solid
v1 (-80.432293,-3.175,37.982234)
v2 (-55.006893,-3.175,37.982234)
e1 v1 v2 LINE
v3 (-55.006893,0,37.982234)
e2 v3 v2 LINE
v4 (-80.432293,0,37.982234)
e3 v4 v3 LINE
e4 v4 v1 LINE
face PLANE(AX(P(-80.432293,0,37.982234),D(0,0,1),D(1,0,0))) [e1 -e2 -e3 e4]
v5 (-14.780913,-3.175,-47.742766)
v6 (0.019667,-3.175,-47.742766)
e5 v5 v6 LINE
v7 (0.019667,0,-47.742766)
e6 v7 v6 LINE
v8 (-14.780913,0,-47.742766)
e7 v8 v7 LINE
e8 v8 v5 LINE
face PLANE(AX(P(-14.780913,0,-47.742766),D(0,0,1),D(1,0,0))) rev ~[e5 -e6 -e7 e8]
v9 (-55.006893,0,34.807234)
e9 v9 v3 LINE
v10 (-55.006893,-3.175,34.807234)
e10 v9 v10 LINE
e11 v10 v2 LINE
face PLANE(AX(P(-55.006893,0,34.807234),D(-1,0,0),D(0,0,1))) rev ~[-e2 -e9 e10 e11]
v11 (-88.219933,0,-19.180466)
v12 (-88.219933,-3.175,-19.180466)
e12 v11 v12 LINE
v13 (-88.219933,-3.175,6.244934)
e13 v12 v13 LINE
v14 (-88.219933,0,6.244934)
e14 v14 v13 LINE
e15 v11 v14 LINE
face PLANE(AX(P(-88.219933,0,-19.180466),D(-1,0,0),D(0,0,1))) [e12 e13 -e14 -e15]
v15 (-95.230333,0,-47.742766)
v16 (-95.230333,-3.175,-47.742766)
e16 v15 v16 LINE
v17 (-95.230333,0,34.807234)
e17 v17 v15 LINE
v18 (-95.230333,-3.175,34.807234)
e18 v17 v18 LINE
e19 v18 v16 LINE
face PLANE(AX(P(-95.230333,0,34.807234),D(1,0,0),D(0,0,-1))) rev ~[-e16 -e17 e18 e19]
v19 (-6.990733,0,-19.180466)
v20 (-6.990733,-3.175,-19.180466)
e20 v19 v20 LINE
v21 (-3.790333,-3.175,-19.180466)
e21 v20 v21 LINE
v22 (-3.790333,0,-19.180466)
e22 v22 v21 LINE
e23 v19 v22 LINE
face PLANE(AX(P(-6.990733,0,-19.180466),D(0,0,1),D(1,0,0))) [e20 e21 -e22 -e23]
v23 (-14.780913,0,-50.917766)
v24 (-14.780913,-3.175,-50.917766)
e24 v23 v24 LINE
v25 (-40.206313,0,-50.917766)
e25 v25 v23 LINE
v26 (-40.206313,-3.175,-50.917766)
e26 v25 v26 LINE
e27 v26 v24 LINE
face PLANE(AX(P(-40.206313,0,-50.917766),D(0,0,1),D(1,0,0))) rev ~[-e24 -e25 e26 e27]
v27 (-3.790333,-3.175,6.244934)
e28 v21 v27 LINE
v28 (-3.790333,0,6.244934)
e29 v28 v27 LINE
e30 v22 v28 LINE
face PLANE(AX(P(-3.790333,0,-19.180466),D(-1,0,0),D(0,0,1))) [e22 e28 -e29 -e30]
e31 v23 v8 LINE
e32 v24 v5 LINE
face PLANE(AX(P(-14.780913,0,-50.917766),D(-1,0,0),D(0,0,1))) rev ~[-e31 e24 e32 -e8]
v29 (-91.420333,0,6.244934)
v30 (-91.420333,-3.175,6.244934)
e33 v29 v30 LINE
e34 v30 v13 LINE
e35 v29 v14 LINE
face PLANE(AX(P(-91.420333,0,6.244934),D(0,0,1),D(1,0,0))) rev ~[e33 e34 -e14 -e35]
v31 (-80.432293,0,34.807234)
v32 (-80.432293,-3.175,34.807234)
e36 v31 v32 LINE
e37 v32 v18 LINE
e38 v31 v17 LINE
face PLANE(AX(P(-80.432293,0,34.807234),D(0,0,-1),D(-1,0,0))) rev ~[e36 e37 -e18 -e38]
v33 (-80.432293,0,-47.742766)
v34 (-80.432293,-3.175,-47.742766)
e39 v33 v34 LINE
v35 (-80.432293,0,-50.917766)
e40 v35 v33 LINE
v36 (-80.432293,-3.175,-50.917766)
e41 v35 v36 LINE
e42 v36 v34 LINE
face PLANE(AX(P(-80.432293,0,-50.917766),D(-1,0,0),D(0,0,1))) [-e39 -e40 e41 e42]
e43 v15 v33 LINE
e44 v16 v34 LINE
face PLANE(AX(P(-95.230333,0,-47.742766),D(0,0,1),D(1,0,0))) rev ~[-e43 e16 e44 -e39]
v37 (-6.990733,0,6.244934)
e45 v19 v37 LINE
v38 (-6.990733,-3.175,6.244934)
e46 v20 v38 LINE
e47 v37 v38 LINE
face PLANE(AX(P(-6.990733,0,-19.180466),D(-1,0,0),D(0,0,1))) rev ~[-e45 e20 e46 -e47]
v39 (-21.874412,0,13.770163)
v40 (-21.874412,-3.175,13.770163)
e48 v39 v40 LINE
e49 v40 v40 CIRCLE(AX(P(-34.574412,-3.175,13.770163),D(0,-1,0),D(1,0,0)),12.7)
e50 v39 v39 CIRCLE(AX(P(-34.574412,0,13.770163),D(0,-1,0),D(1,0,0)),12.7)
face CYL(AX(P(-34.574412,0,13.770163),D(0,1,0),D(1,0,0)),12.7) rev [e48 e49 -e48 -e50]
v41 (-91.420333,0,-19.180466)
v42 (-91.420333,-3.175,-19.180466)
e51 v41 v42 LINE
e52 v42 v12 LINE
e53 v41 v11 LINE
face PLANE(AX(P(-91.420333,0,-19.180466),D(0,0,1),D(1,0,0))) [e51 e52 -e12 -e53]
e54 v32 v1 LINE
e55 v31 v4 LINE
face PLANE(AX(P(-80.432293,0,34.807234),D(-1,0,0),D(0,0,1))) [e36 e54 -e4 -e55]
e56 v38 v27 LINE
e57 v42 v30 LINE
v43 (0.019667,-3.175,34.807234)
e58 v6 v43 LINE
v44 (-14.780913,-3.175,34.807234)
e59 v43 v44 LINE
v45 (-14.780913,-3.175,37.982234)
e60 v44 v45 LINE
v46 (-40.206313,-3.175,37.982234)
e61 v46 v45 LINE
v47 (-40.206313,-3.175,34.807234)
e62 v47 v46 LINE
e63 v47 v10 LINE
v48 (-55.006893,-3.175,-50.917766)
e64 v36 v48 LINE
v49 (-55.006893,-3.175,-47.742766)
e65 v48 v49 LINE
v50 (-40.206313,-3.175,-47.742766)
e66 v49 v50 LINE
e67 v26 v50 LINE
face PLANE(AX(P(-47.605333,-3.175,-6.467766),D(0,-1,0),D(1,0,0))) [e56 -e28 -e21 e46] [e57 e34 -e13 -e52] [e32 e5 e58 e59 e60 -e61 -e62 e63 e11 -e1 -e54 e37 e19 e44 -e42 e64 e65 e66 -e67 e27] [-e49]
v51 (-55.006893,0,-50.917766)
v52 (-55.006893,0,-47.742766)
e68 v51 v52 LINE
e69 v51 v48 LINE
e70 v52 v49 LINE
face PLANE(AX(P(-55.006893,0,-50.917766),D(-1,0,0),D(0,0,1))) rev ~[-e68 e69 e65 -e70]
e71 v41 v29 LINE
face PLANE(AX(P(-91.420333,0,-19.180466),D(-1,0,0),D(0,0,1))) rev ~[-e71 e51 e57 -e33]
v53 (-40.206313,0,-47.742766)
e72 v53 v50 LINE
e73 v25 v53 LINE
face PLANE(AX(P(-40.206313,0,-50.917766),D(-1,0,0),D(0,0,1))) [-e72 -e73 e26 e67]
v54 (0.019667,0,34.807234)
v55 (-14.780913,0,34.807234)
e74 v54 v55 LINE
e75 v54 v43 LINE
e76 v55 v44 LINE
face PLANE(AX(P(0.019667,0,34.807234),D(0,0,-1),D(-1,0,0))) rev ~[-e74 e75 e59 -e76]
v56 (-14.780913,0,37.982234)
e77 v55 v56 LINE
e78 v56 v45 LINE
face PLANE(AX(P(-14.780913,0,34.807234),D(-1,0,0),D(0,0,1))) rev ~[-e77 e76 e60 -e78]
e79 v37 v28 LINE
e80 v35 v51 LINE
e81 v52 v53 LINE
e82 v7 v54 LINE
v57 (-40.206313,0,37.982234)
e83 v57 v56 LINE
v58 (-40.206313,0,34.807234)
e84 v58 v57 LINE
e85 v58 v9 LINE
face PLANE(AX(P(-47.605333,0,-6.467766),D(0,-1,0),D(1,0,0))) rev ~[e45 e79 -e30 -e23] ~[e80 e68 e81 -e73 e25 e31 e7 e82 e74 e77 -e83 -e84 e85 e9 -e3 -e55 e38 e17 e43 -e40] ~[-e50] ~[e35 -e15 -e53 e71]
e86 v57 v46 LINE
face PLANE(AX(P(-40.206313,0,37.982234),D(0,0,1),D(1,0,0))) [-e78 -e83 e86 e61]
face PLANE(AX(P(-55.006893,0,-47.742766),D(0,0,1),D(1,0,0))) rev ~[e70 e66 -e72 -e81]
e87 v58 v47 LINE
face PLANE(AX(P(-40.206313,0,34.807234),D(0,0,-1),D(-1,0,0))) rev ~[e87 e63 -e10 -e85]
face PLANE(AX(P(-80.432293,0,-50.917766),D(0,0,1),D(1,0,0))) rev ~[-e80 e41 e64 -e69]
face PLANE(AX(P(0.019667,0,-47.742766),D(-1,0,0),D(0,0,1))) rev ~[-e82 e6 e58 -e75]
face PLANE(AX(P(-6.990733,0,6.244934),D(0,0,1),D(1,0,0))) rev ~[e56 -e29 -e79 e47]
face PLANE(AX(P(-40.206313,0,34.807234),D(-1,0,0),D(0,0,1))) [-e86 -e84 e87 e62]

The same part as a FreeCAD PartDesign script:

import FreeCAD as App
import Part
import Sketcher

V = App.Vector
Q = App.Units.Quantity


def add_polygon(sketch, points):
    """Adds a closed chain of lines whose ends are joined by coincident constraints."""
    first, n = sketch.GeometryCount, len(points)
    for a, b in zip(points, points[1:] + points[:1]):
        sketch.addGeometry(Part.LineSegment(App.Vector(*a, 0), App.Vector(*b, 0)), False)
    for i in range(n):
        sketch.addConstraint(Sketcher.Constraint("Coincident", first + i, 2, first + (i + 1) % n, 1))

doc = App.newDocument("Part")
params = doc.addObject("Spreadsheet::Sheet", "Params")
for row, (alias, value) in enumerate([
    ("sketch1_diameter", "1 in"),
    ("sketch1_height", "3.25 in"),
    ("sketch1_width", "1.001 in"),
    ("sketch1_width2", "0.126 in"),
    ("sketch1_height2", "0.125 in"),
    ("pad1_length", "0.125 in"),
], start=1):
    params.set(f"A{row}", alias)
    params.set(f"B{row}", "=" + value)
    params.setAlias(f"B{row}", alias)

body = doc.addObject("PartDesign::Body", "Body")

sketch1 = doc.addObject("Sketcher::SketchObject", "Sketch")
body.addObject(sketch1)
sketch1.AttachmentSupport = (doc.XZ_Plane, [""])
sketch1.MapMode = "FlatFace"
add_polygon(sketch1, [(-95.230333, 34.807234), (-95.230333, -47.742766), (-80.432293, -47.742766), (-80.432293, -50.917766), (-55.006893, -50.917766), (-55.006893, -47.742766), (-40.206313, -47.742766), (-40.206313, -50.917766), (-14.780913, -50.917766), (-14.780913, -47.742766), (0.019667, -47.742766), (0.019667, 34.807234), (-14.780913, 34.807234), (-14.780913, 37.982234), (-40.206313, 37.982234), (-40.206313, 34.807234), (-55.006893, 34.807234), (-55.006893, 37.982234), (-80.432293, 37.982234), (-80.432293, 34.807234)])
add_polygon(sketch1, [(-88.219933, -19.180466), (-91.420333, -19.180466), (-91.420333, 6.244934), (-88.219933, 6.244934)])
add_polygon(sketch1, [(-3.790333, -19.180466), (-6.990733, -19.180466), (-6.990733, 6.244934), (-3.790333, 6.244934)])
sketch1.addGeometry(Part.Circle(V(-34.574412, 13.770163, 0), V(0, 0, 1), 12.7), False)
sketch1.addConstraint([
    Sketcher.Constraint("Vertical", 0),
    Sketcher.Constraint("Horizontal", 1),
    Sketcher.Constraint("Vertical", 2),
    Sketcher.Constraint("Horizontal", 3),
    Sketcher.Constraint("Vertical", 4),
    Sketcher.Constraint("Horizontal", 5),
    Sketcher.Constraint("Vertical", 6),
    Sketcher.Constraint("Horizontal", 7),
    Sketcher.Constraint("Vertical", 8),
    Sketcher.Constraint("Horizontal", 9),
    Sketcher.Constraint("Vertical", 10),
    Sketcher.Constraint("Horizontal", 11),
    Sketcher.Constraint("Vertical", 12),
    Sketcher.Constraint("Horizontal", 13),
    Sketcher.Constraint("Vertical", 14),
    Sketcher.Constraint("Horizontal", 15),
    Sketcher.Constraint("Vertical", 16),
    Sketcher.Constraint("Horizontal", 17),
    Sketcher.Constraint("Vertical", 18),
    Sketcher.Constraint("Horizontal", 19),
    Sketcher.Constraint("Horizontal", 20),
    Sketcher.Constraint("Vertical", 21),
    Sketcher.Constraint("Horizontal", 22),
    Sketcher.Constraint("Vertical", 23),
    Sketcher.Constraint("Horizontal", 24),
    Sketcher.Constraint("Vertical", 25),
    Sketcher.Constraint("Horizontal", 26),
    Sketcher.Constraint("Vertical", 27),
    Sketcher.Constraint("Horizontal", 1, 2, 4, 2),
    Sketcher.Constraint("Horizontal", 3, 2, 6, 2),
    Sketcher.Constraint("Horizontal", 5, 2, 8, 2),
    Sketcher.Constraint("Horizontal", 11, 2, 14, 2),
    Sketcher.Constraint("Horizontal", 13, 2, 16, 2),
    Sketcher.Constraint("Horizontal", 15, 2, 18, 2),
    Sketcher.Constraint("Horizontal", 23, 2, 24, 2),
    Sketcher.Constraint("Horizontal", 22, 2, 25, 2),
    Sketcher.Constraint("Vertical", 8, 2, 11, 2),
    Sketcher.Constraint("Vertical", 6, 2, 13, 2),
    Sketcher.Constraint("Vertical", 4, 2, 15, 2),
    Sketcher.Constraint("Vertical", 2, 2, 17, 2),
    Sketcher.Constraint("Equal", 3, 7),
    Sketcher.Constraint("Equal", 5, 9),
    Sketcher.Constraint("Equal", 22, 24),
    Sketcher.Constraint("Equal", 8, 12),
    Sketcher.Constraint("Equal", 17, 21),
    Sketcher.Constraint("Diameter", 28, Q("1 in")),
    Sketcher.Constraint("DistanceY", 0, 2, 0, 1, Q("3.25 in")),
    Sketcher.Constraint("DistanceX", 3, 1, 3, 2, Q("1.001 in")),
    Sketcher.Constraint("DistanceX", 20, 2, 20, 1, Q("0.126 in")),
    Sketcher.Constraint("DistanceY", 2, 2, 2, 1, Q("0.125 in")),
    Sketcher.Constraint("DistanceX", 0, 2, 20, 2, Q("0.15 in")),
    Sketcher.Constraint("DistanceX", 26, 2, 10, 2, Q("0.15 in")),
    Sketcher.Constraint("DistanceX", 1, 1, 1, 2, Q("0.5826 in")),
    Sketcher.Constraint("DistanceX", 5, 1, 5, 2, Q("0.5827 in")),
    Sketcher.Constraint("DistanceY", 0, 2, 20, 2, Q("1.1245 in")),
    Sketcher.Constraint("DistanceX", 28, 3, 11, 2, Q("19.793499 mm")),
    Sketcher.Constraint("DistanceY", 0, 2, 28, 3, Q("61.512929 mm")),
    Sketcher.Constraint("DistanceX", 28, 3, -1, 1, Q("34.574412 mm")),
    Sketcher.Constraint("DistanceY", -1, 1, 28, 3, Q("13.770163 mm")),
])
sketch1.setExpression("Constraints[73]", "Params.sketch1_diameter")
sketch1.setExpression("Constraints[74]", "Params.sketch1_height")
sketch1.setExpression("Constraints[75]", "Params.sketch1_width")
sketch1.setExpression("Constraints[76]", "Params.sketch1_width2")
sketch1.setExpression("Constraints[77]", "Params.sketch1_height2")
pad1 = doc.addObject("PartDesign::Pad", "Pad")
body.addObject(pad1)
pad1.Profile = sketch1
pad1.setExpression("Length", "Params.pad1_length")

doc.recompute()
